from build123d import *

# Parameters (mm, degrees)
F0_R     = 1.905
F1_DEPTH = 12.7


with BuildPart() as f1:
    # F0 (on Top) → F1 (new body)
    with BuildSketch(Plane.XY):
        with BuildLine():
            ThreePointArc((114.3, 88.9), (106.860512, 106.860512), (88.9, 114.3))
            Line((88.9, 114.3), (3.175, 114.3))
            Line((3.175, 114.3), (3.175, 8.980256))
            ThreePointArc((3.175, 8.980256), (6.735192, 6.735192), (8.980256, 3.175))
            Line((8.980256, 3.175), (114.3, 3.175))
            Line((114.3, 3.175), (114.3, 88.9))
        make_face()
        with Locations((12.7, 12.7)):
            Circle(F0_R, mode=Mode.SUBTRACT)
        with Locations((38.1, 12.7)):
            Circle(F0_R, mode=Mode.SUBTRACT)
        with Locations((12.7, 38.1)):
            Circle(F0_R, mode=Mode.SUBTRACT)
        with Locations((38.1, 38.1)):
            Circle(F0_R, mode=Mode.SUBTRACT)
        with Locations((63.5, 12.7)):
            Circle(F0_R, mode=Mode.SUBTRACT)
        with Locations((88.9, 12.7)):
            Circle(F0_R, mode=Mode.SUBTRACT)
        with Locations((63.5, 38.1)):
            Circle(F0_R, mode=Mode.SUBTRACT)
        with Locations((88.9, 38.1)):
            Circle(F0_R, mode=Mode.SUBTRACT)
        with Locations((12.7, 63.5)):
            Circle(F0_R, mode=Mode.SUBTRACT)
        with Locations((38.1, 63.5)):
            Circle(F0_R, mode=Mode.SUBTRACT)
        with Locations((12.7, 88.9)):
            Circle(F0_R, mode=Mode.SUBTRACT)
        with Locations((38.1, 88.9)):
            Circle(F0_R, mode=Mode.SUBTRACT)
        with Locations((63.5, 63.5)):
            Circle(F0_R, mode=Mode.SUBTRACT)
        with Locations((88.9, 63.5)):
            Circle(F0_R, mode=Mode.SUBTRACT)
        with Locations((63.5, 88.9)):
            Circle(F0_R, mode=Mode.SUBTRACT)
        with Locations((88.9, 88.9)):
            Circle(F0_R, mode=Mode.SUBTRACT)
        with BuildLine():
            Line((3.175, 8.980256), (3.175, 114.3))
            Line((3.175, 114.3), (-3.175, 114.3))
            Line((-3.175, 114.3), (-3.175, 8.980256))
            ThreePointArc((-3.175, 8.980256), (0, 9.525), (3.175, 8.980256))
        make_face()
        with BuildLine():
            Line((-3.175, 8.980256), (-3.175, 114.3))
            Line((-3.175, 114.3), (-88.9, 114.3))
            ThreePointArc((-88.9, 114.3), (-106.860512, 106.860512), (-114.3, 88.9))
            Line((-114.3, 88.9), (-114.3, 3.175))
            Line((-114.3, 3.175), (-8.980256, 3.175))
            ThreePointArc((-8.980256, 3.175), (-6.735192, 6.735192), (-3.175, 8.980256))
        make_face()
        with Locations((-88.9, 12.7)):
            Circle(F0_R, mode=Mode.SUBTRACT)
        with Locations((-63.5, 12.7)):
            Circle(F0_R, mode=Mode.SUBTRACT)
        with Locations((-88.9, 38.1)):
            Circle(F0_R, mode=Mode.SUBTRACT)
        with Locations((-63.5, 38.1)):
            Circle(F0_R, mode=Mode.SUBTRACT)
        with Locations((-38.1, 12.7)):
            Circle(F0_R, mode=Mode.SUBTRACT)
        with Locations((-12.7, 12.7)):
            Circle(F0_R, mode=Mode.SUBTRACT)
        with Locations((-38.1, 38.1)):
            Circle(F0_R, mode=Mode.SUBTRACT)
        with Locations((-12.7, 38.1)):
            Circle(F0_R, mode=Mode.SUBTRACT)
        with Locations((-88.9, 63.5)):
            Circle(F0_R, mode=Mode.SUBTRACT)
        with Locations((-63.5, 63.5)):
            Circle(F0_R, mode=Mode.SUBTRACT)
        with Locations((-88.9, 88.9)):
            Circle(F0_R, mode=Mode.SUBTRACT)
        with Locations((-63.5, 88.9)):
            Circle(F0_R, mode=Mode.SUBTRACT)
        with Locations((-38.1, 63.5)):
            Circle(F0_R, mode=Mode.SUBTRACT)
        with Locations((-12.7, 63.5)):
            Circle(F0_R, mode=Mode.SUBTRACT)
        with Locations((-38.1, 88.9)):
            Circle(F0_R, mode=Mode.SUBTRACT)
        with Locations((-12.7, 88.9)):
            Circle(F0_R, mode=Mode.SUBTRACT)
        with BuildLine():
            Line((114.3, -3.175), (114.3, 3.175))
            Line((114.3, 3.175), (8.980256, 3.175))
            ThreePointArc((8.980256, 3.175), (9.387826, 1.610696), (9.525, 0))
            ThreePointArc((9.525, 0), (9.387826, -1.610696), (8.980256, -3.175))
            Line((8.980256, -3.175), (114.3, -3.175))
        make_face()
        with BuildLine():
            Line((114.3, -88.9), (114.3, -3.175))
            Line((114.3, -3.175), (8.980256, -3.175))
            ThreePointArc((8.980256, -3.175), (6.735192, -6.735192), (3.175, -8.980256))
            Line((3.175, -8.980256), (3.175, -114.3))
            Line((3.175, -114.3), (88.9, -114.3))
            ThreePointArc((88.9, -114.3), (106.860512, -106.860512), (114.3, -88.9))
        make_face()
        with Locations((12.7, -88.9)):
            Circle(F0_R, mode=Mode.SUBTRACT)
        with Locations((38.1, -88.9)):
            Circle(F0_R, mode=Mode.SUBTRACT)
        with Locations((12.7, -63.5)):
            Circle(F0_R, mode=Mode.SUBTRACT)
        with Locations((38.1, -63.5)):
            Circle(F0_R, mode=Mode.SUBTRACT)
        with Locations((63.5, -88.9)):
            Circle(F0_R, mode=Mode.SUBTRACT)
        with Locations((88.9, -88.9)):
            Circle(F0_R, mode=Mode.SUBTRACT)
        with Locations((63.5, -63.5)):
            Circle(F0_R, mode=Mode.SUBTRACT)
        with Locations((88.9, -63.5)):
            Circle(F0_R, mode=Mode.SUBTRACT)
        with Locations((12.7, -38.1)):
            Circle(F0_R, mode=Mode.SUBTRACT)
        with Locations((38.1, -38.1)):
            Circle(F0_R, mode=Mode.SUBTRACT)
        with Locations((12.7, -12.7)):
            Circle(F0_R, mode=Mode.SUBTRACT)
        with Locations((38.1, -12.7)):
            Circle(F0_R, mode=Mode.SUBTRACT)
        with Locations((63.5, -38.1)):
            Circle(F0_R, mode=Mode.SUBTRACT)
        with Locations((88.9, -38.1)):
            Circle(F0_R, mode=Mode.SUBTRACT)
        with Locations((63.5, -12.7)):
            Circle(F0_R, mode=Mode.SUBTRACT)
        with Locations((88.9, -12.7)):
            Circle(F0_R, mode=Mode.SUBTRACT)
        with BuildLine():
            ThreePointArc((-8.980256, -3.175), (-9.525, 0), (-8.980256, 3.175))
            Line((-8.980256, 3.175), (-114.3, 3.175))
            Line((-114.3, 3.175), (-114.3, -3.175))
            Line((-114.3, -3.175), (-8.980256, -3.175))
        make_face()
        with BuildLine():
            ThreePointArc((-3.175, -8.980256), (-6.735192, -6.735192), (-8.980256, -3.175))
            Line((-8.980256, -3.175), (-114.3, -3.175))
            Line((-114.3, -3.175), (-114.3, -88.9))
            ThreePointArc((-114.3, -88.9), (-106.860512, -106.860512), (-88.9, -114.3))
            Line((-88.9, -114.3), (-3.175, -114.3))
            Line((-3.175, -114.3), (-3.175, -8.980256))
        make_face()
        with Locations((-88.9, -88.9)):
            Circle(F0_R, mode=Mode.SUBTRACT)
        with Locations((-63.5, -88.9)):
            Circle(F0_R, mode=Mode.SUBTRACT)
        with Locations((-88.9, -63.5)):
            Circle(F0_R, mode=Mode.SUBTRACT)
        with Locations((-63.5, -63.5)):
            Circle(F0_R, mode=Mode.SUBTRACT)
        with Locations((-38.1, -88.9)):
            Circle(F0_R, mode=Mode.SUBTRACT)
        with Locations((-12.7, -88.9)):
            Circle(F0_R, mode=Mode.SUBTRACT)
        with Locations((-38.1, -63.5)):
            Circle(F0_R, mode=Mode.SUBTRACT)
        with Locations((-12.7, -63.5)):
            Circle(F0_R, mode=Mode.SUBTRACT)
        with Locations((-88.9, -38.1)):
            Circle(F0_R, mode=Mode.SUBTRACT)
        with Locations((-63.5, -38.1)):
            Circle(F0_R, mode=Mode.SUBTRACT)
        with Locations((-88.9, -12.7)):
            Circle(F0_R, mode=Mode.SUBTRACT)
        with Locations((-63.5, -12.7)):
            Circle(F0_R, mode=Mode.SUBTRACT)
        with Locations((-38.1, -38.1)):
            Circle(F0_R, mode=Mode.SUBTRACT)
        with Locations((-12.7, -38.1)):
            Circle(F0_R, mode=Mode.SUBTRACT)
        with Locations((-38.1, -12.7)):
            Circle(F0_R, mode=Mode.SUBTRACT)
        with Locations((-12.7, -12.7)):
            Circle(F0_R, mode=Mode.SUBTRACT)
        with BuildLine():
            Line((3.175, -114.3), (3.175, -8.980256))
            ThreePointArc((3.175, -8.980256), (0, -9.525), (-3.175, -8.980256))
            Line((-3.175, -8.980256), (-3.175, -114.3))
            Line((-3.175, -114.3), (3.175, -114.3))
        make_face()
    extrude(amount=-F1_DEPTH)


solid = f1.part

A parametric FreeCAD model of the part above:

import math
import FreeCAD as App
import Part
import Sketcher
Q = App.Units.Quantity

doc = App.newDocument("Part")
body = doc.addObject("PartDesign::Body", "Body")

sketch1 = body.newObject("Sketcher::SketchObject", "Sketch")
sketch1.AttachmentSupport = (doc.getObject("XY_Plane"), [""])
sketch1.MapMode = "FlatFace"
sketch1.addGeometry([
    Part.ArcOfCircle(Part.Circle(App.Vector(88.899999, 88.899999, 0), App.Vector(0, 0, 1), 25.400001), math.radians(0.000002), math.radians(89.999998)),
    Part.LineSegment(App.Vector(88.9, 114.3, 0), App.Vector(-88.9, 114.3, 0)),
    Part.ArcOfCircle(Part.Circle(App.Vector(-88.899999, 88.899999, 0), App.Vector(0, 0, 1), 25.400001), math.radians(90.000002), math.radians(179.999998)),
    Part.LineSegment(App.Vector(-114.3, 88.9, 0), App.Vector(-114.3, -88.9, 0)),
    Part.ArcOfCircle(Part.Circle(App.Vector(-88.899999, -88.899999, 0), App.Vector(0, 0, 1), 25.400001), math.radians(-179.999998), math.radians(-90.000002)),
    Part.LineSegment(App.Vector(-88.9, -114.3, 0), App.Vector(88.9, -114.3, 0)),
    Part.ArcOfCircle(Part.Circle(App.Vector(88.899999, -88.899999, 0), App.Vector(0, 0, 1), 25.400001), math.radians(-89.999998), math.radians(-0.000002)),
    Part.LineSegment(App.Vector(114.3, -88.9, 0), App.Vector(114.3, 88.9, 0)),
    Part.ArcOfCircle(Part.Circle(App.Vector(0, 0, 0), App.Vector(0, 0, 1), 9.525), math.radians(-70.528779), math.radians(-19.471221)),
    Part.ArcOfCircle(Part.Circle(App.Vector(0, -0.000002, 0), App.Vector(0, 0, 1), 9.524998), math.radians(-109.471225), math.radians(-70.528775)),
    Part.ArcOfCircle(Part.Circle(App.Vector(0, 0, 0), App.Vector(0, 0, 1), 9.525), math.radians(-160.528779), math.radians(-109.471221)),
    Part.ArcOfCircle(Part.Circle(App.Vector(-0.000002, 0, 0), App.Vector(0, 0, 1), 9.524998), math.radians(160.528775), math.radians(199.471225)),
    Part.ArcOfCircle(Part.Circle(App.Vector(0, 0, 0), App.Vector(0, 0, 1), 9.525), math.radians(109.471221), math.radians(160.528779)),
    Part.ArcOfCircle(Part.Circle(App.Vector(0, 0.000002, 0), App.Vector(0, 0, 1), 9.524998), math.radians(70.528775), math.radians(109.471225)),
    Part.ArcOfCircle(Part.Circle(App.Vector(0, 0, 0), App.Vector(0, 0, 1), 9.525), math.radians(19.471221), math.radians(70.528779)),
    Part.ArcOfCircle(Part.Circle(App.Vector(-0.000019, -0.000004, 0), App.Vector(0, 0, 1), 9.525019), math.radians(0.000022), math.radians(19.471203)),
    Part.ArcOfCircle(Part.Circle(App.Vector(-0.000019, 0.000004, 0), App.Vector(0, 0, 1), 9.525019), math.radians(-19.471203), math.radians(-0.000022)),
    Part.Circle(App.Vector(-88.9, -88.9, 0), App.Vector(0, 0, 1), 1.905),
    Part.Circle(App.Vector(-63.5, -88.9, 0), App.Vector(0, 0, 1), 1.905),
    Part.Circle(App.Vector(-88.9, -63.5, 0), App.Vector(0, 0, 1), 1.905),
    Part.Circle(App.Vector(-63.5, -63.5, 0), App.Vector(0, 0, 1), 1.905),
    Part.Circle(App.Vector(-38.1, -88.9, 0), App.Vector(0, 0, 1), 1.905),
    Part.Circle(App.Vector(-12.7, -88.9, 0), App.Vector(0, 0, 1), 1.905),
    Part.Circle(App.Vector(-38.1, -63.5, 0), App.Vector(0, 0, 1), 1.905),
    Part.Circle(App.Vector(-12.7, -63.5, 0), App.Vector(0, 0, 1), 1.905),
    Part.Circle(App.Vector(-88.9, -38.1, 0), App.Vector(0, 0, 1), 1.905),
    Part.Circle(App.Vector(-63.5, -38.1, 0), App.Vector(0, 0, 1), 1.905),
    Part.Circle(App.Vector(-88.9, -12.7, 0), App.Vector(0, 0, 1), 1.905),
    Part.Circle(App.Vector(-63.5, -12.7, 0), App.Vector(0, 0, 1), 1.905),
    Part.Circle(App.Vector(-38.1, -38.1, 0), App.Vector(0, 0, 1), 1.905),
    Part.Circle(App.Vector(-12.7, -38.1, 0), App.Vector(0, 0, 1), 1.905),
    Part.Circle(App.Vector(-38.1, -12.7, 0), App.Vector(0, 0, 1), 1.905),
    Part.Circle(App.Vector(-12.7, -12.7, 0), App.Vector(0, 0, 1), 1.905),
    Part.Circle(App.Vector(12.7, -88.9, 0), App.Vector(0, 0, 1), 1.905),
    Part.Circle(App.Vector(38.1, -88.9, 0), App.Vector(0, 0, 1), 1.905),
    Part.Circle(App.Vector(12.7, -63.5, 0), App.Vector(0, 0, 1), 1.905),
    Part.Circle(App.Vector(38.1, -63.5, 0), App.Vector(0, 0, 1), 1.905),
    Part.Circle(App.Vector(63.5, -88.9, 0), App.Vector(0, 0, 1), 1.905),
    Part.Circle(App.Vector(88.9, -88.9, 0), App.Vector(0, 0, 1), 1.905),
    Part.Circle(App.Vector(63.5, -63.5, 0), App.Vector(0, 0, 1), 1.905),
    Part.Circle(App.Vector(88.9, -63.5, 0), App.Vector(0, 0, 1), 1.905),
    Part.Circle(App.Vector(12.7, -38.1, 0), App.Vector(0, 0, 1), 1.905),
    Part.Circle(App.Vector(38.1, -38.1, 0), App.Vector(0, 0, 1), 1.905),
    Part.Circle(App.Vector(12.7, -12.7, 0), App.Vector(0, 0, 1), 1.905),
    Part.Circle(App.Vector(38.1, -12.7, 0), App.Vector(0, 0, 1), 1.905),
    Part.Circle(App.Vector(63.5, -38.1, 0), App.Vector(0, 0, 1), 1.905),
    Part.Circle(App.Vector(88.9, -38.1, 0), App.Vector(0, 0, 1), 1.905),
    Part.Circle(App.Vector(63.5, -12.7, 0), App.Vector(0, 0, 1), 1.905),
    Part.Circle(App.Vector(88.9, -12.7, 0), App.Vector(0, 0, 1), 1.905),
    Part.Circle(App.Vector(-88.9, 12.7, 0), App.Vector(0, 0, 1), 1.905),
    Part.Circle(App.Vector(-63.5, 12.7, 0), App.Vector(0, 0, 1), 1.905),
    Part.Circle(App.Vector(-88.9, 38.1, 0), App.Vector(0, 0, 1), 1.905),
    Part.Circle(App.Vector(-63.5, 38.1, 0), App.Vector(0, 0, 1), 1.905),
    Part.Circle(App.Vector(-38.1, 12.7, 0), App.Vector(0, 0, 1), 1.905),
    Part.Circle(App.Vector(-12.7, 12.7, 0), App.Vector(0, 0, 1), 1.905),
    Part.Circle(App.Vector(-38.1, 38.1, 0), App.Vector(0, 0, 1), 1.905),
    Part.Circle(App.Vector(-12.7, 38.1, 0), App.Vector(0, 0, 1), 1.905),
    Part.Circle(App.Vector(-88.9, 63.5, 0), App.Vector(0, 0, 1), 1.905),
    Part.Circle(App.Vector(-63.5, 63.5, 0), App.Vector(0, 0, 1), 1.905),
    Part.Circle(App.Vector(-88.9, 88.9, 0), App.Vector(0, 0, 1), 1.905),
    Part.Circle(App.Vector(-63.5, 88.9, 0), App.Vector(0, 0, 1), 1.905),
    Part.Circle(App.Vector(-38.1, 63.5, 0), App.Vector(0, 0, 1), 1.905),
    Part.Circle(App.Vector(-12.7, 63.5, 0), App.Vector(0, 0, 1), 1.905),
    Part.Circle(App.Vector(-38.1, 88.9, 0), App.Vector(0, 0, 1), 1.905),
    Part.Circle(App.Vector(-12.7, 88.9, 0), App.Vector(0, 0, 1), 1.905),
    Part.Circle(App.Vector(12.7, 12.7, 0), App.Vector(0, 0, 1), 1.905),
    Part.Circle(App.Vector(38.1, 12.7, 0), App.Vector(0, 0, 1), 1.905),
    Part.Circle(App.Vector(12.7, 38.1, 0), App.Vector(0, 0, 1), 1.905),
    Part.Circle(App.Vector(38.1, 38.1, 0), App.Vector(0, 0, 1), 1.905),
    Part.Circle(App.Vector(63.5, 12.7, 0), App.Vector(0, 0, 1), 1.905),
    Part.Circle(App.Vector(88.9, 12.7, 0), App.Vector(0, 0, 1), 1.905),
    Part.Circle(App.Vector(63.5, 38.1, 0), App.Vector(0, 0, 1), 1.905),
    Part.Circle(App.Vector(88.9, 38.1, 0), App.Vector(0, 0, 1), 1.905),
    Part.Circle(App.Vector(12.7, 63.5, 0), App.Vector(0, 0, 1), 1.905),
    Part.Circle(App.Vector(38.1, 63.5, 0), App.Vector(0, 0, 1), 1.905),
    Part.Circle(App.Vector(12.7, 88.9, 0), App.Vector(0, 0, 1), 1.905),
    Part.Circle(App.Vector(38.1, 88.9, 0), App.Vector(0, 0, 1), 1.905),
    Part.Circle(App.Vector(63.5, 63.5, 0), App.Vector(0, 0, 1), 1.905),
    Part.Circle(App.Vector(88.9, 63.5, 0), App.Vector(0, 0, 1), 1.905),
    Part.Circle(App.Vector(63.5, 88.9, 0), App.Vector(0, 0, 1), 1.905),
    Part.Circle(App.Vector(88.9, 88.9, 0), App.Vector(0, 0, 1), 1.905),
], False)
sketch1.addConstraint([
    Sketcher.Constraint("Tangent", 0, 2, 1, 1),
    Sketcher.Constraint("Tangent", 1, 2, 2, 1),
    Sketcher.Constraint("Tangent", 2, 2, 3, 1),
    Sketcher.Constraint("Tangent", 3, 2, 4, 1),
    Sketcher.Constraint("Tangent", 4, 2, 5, 1),
    Sketcher.Constraint("Tangent", 5, 2, 6, 1),
    Sketcher.Constraint("Tangent", 6, 2, 7, 1),
    Sketcher.Constraint("Tangent", 7, 2, 0, 1),
    Sketcher.Constraint("Tangent", 8, 1, 9, 2),
    Sketcher.Constraint("Tangent", 9, 1, 10, 2),
    Sketcher.Constraint("Tangent", 10, 1, 11, 2),
    Sketcher.Constraint("Tangent", 11, 1, 12, 2),
    Sketcher.Constraint("Tangent", 12, 1, 13, 2),
    Sketcher.Constraint("Tangent", 13, 1, 14, 2),
    Sketcher.Constraint("Tangent", 14, 1, 15, 2),
    Sketcher.Constraint("Tangent", 15, 1, 16, 2),
    Sketcher.Constraint("Tangent", 16, 1, 8, 2),
    Sketcher.Constraint("Horizontal", 1),
    Sketcher.Constraint("Vertical", 3),
    Sketcher.Constraint("Horizontal", 5),
    Sketcher.Constraint("Vertical", 7),
    Sketcher.Constraint("Coincident", 8, 3, -1, 1),
    Sketcher.Constraint("Coincident", 10, 3, -1, 1),
    Sketcher.Constraint("Coincident", 12, 3, -1, 1),
    Sketcher.Constraint("Coincident", 14, 3, -1, 1),
    Sketcher.Constraint("Coincident", 17, 3, 4, 3),
    Sketcher.Constraint("Coincident", 38, 3, 6, 3),
    Sketcher.Constraint("Coincident", 59, 3, 2, 3),
    Sketcher.Constraint("Coincident", 80, 3, 0, 3),
    Sketcher.Constraint("Equal", 0, 2),
    Sketcher.Constraint("Equal", 2, 4),
    Sketcher.Constraint("Equal", 4, 6),
    Sketcher.Constraint("Equal", 17, 18),
    Sketcher.Constraint("Equal", 18, 19),
    Sketcher.Constraint("Equal", 19, 20),
    Sketcher.Constraint("Equal", 20, 21),
    Sketcher.Constraint("Equal", 21, 22),
    Sketcher.Constraint("Equal", 22, 23),
    Sketcher.Constraint("Equal", 23, 24),
    Sketcher.Constraint("Equal", 24, 25),
    Sketcher.Constraint("Equal", 25, 26),
    Sketcher.Constraint("Equal", 26, 27),
    Sketcher.Constraint("Equal", 27, 28),
    Sketcher.Constraint("Equal", 28, 29),
    Sketcher.Constraint("Equal", 29, 30),
    Sketcher.Constraint("Equal", 30, 31),
    Sketcher.Constraint("Equal", 31, 32),
    Sketcher.Constraint("Equal", 32, 33),
    Sketcher.Constraint("Equal", 33, 34),
    Sketcher.Constraint("Equal", 34, 35),
    Sketcher.Constraint("Equal", 35, 36),
    Sketcher.Constraint("Equal", 36, 37),
    Sketcher.Constraint("Equal", 37, 38),
    Sketcher.Constraint("Equal", 38, 39),
    Sketcher.Constraint("Equal", 39, 40),
    Sketcher.Constraint("Equal", 40, 41),
    Sketcher.Constraint("Equal", 41, 42),
    Sketcher.Constraint("Equal", 42, 43),
    Sketcher.Constraint("Equal", 43, 44),
    Sketcher.Constraint("Equal", 44, 45),
    Sketcher.Constraint("Equal", 45, 46),
    Sketcher.Constraint("Equal", 46, 47),
    Sketcher.Constraint("Equal", 47, 48),
    Sketcher.Constraint("Equal", 48, 49),
    Sketcher.Constraint("Equal", 49, 50),
    Sketcher.Constraint("Equal", 50, 51),
    Sketcher.Constraint("Equal", 51, 52),
    Sketcher.Constraint("Equal", 52, 53),
    Sketcher.Constraint("Equal", 53, 54),
    Sketcher.Constraint("Equal", 54, 55),
    Sketcher.Constraint("Equal", 55, 56),
    Sketcher.Constraint("Equal", 56, 57),
    Sketcher.Constraint("Equal", 57, 58),
    Sketcher.Constraint("Equal", 58, 59),
    Sketcher.Constraint("Equal", 59, 60),
    Sketcher.Constraint("Equal", 60, 61),
    Sketcher.Constraint("Equal", 61, 62),
    Sketcher.Constraint("Equal", 62, 63),
    Sketcher.Constraint("Equal", 63, 64),
    Sketcher.Constraint("Equal", 64, 65),
    Sketcher.Constraint("Equal", 65, 66),
    Sketcher.Constraint("Equal", 66, 67),
    Sketcher.Constraint("Equal", 67, 68),
    Sketcher.Constraint("Equal", 68, 69),
    Sketcher.Constraint("Equal", 69, 70),
    Sketcher.Constraint("Equal", 70, 71),
    Sketcher.Constraint("Equal", 71, 72),
    Sketcher.Constraint("Equal", 72, 73),
    Sketcher.Constraint("Equal", 73, 74),
    Sketcher.Constraint("Equal", 74, 75),
    Sketcher.Constraint("Equal", 75, 76),
    Sketcher.Constraint("Equal", 76, 77),
    Sketcher.Constraint("Equal", 77, 78),
    Sketcher.Constraint("Equal", 78, 79),
    Sketcher.Constraint("Equal", 79, 80),
    Sketcher.Constraint("Symmetric", 0, 3, 4, 3, -1, 1),
    Sketcher.Constraint("Symmetric", 48, 3, 49, 3, -1, 1),
    Sketcher.Constraint("Symmetric", 47, 3, 50, 3, -1, 1),
    Sketcher.Constraint("Symmetric", 46, 3, 51, 3, -1, 1),
    Sketcher.Constraint("Symmetric", 45, 3, 52, 3, -1, 1),
    Sketcher.Constraint("Symmetric", 44, 3, 53, 3, -1, 1),
    Sketcher.Constraint("Symmetric", 43, 3, 54, 3, -1, 1),
    Sketcher.Constraint("Symmetric", 42, 3, 55, 3, -1, 1),
    Sketcher.Constraint("Symmetric", 41, 3, 56, 3, -1, 1),
    Sketcher.Constraint("Symmetric", 40, 3, 57, 3, -1, 1),
    Sketcher.Constraint("Symmetric", 39, 3, 58, 3, -1, 1),
    Sketcher.Constraint("Symmetric", 37, 3, 60, 3, -1, 1),
    Sketcher.Constraint("Symmetric", 36, 3, 61, 3, -1, 1),
    Sketcher.Constraint("Symmetric", 35, 3, 62, 3, -1, 1),
    Sketcher.Constraint("Symmetric", 34, 3, 63, 3, -1, 1),
    Sketcher.Constraint("Symmetric", 33, 3, 64, 3, -1, 1),
    Sketcher.Constraint("Symmetric", 32, 3, 65, 3, -1, 1),
    Sketcher.Constraint("Symmetric", 31, 3, 66, 3, -1, 1),
    Sketcher.Constraint("Symmetric", 30, 3, 67, 3, -1, 1),
    Sketcher.Constraint("Symmetric", 29, 3, 68, 3, -1, 1),
    Sketcher.Constraint("Symmetric", 28, 3, 69, 3, -1, 1),
    Sketcher.Constraint("Symmetric", 27, 3, 70, 3, -1, 1),
    Sketcher.Constraint("Symmetric", 26, 3, 71, 3, -1, 1),
    Sketcher.Constraint("Symmetric", 25, 3, 72, 3, -1, 1),
    Sketcher.Constraint("Symmetric", 24, 3, 73, 3, -1, 1),
    Sketcher.Constraint("Symmetric", 23, 3, 74, 3, -1, 1),
    Sketcher.Constraint("Symmetric", 22, 3, 75, 3, -1, 1),
    Sketcher.Constraint("Symmetric", 21, 3, 76, 3, -1, 1),
    Sketcher.Constraint("Symmetric", 20, 3, 77, 3, -1, 1),
    Sketcher.Constraint("Symmetric", 19, 3, 78, 3, -1, 1),
    Sketcher.Constraint("Symmetric", 18, 3, 79, 3, -1, 1),
    Sketcher.Constraint("Symmetric", 22, 3, 33, 3, -2),
    Sketcher.Constraint("Symmetric", 21, 3, 34, 3, -2),
    Sketcher.Constraint("Symmetric", 24, 3, 35, 3, -2),
    Sketcher.Constraint("Symmetric", 23, 3, 36, 3, -2),
    Sketcher.Constraint("Symmetric", 18, 3, 37, 3, -2),
    Sketcher.Constraint("Symmetric", 20, 3, 39, 3, -2),
    Sketcher.Constraint("Symmetric", 19, 3, 40, 3, -2),
    Sketcher.Constraint("Symmetric", 30, 3, 41, 3, -2),
    Sketcher.Constraint("Symmetric", 29, 3, 42, 3, -2),
    Sketcher.Constraint("Symmetric", 32, 3, 43, 3, -2),
    Sketcher.Constraint("Symmetric", 31, 3, 44, 3, -2),
    Sketcher.Constraint("Symmetric", 26, 3, 45, 3, -2),
    Sketcher.Constraint("Symmetric", 25, 3, 46, 3, -2),
    Sketcher.Constraint("Symmetric", 28, 3, 47, 3, -2),
    Sketcher.Constraint("Symmetric", 27, 3, 48, 3, -2),
    Sketcher.Constraint("PointOnObject", 15, 1, -1),
    Sketcher.Constraint("Horizontal", 17, 3, 18, 3),
    Sketcher.Constraint("Horizontal", 19, 3, 20, 3),
    Sketcher.Constraint("Horizontal", 18, 3, 21, 3),
    Sketcher.Constraint("Horizontal", 21, 3, 22, 3),
    Sketcher.Constraint("Horizontal", 20, 3, 23, 3),
    Sketcher.Constraint("Horizontal", 23, 3, 24, 3),
    Sketcher.Constraint("Horizontal", 25, 3, 26, 3),
    Sketcher.Constraint("Horizontal", 27, 3, 28, 3),
    Sketcher.Constraint("Horizontal", 26, 3, 29, 3),
    Sketcher.Constraint("Horizontal", 29, 3, 30, 3),
    Sketcher.Constraint("Horizontal", 28, 3, 31, 3),
    Sketcher.Constraint("Horizontal", 31, 3, 32, 3),
    Sketcher.Constraint("Horizontal", 8, 1, 9, 1),
    Sketcher.Constraint("Horizontal", 12, 1, 13, 1),
    Sketcher.Constraint("Horizontal", 11, 1, 14, 1),
    Sketcher.Constraint("Horizontal", 10, 1, 16, 1),
    Sketcher.Constraint("Vertical", 17, 3, 19, 3),
    Sketcher.Constraint("Vertical", 18, 3, 20, 3),
    Sketcher.Constraint("Vertical", 21, 3, 23, 3),
    Sketcher.Constraint("Vertical", 22, 3, 24, 3),
    Sketcher.Constraint("Vertical", 19, 3, 25, 3),
    Sketcher.Constraint("Vertical", 20, 3, 26, 3),
    Sketcher.Constraint("Vertical", 25, 3, 27, 3),
    Sketcher.Constraint("Vertical", 26, 3, 28, 3),
    Sketcher.Constraint("Vertical", 23, 3, 29, 3),
    Sketcher.Constraint("Vertical", 24, 3, 30, 3),
    Sketcher.Constraint("Vertical", 29, 3, 31, 3),
    Sketcher.Constraint("Vertical", 30, 3, 32, 3),
    Sketcher.Constraint("Vertical", 10, 1, 11, 1),
    Sketcher.Constraint("Vertical", 9, 1, 12, 1),
    Sketcher.Constraint("Equal", 5, 3),
    Sketcher.Constraint("Radius", 0, Q("1 in")),
    Sketcher.Constraint("Diameter", 17, Q("0.15 in")),
    Sketcher.Constraint("DistanceX", 1, 2, 1, 1, Q("7 in")),
    Sketcher.Constraint("Radius", 8, Q("0.375 in")),
    Sketcher.Constraint("DistanceX", 18, 3, -1, 1, Q("2.5 in")),
    Sketcher.Constraint("DistanceY", 19, 3, -1, 1, Q("2.5 in")),
    Sketcher.Constraint("DistanceX", 21, 3, -1, 1, Q("1.5 in")),
    Sketcher.Constraint("DistanceX", 22, 3, -1, 1, Q("0.5 in")),
    Sketcher.Constraint("DistanceY", 25, 3, -1, 1, Q("1.5 in")),
    Sketcher.Constraint("DistanceY", 27, 3, -1, 1, Q("0.5 in")),
    Sketcher.Constraint("DistanceX", -1, 1, 8, 1, Q("0.125 in")),
    Sketcher.Constraint("DistanceY", 10, 1, -1, 1, Q("0.125 in")),
])
pad1 = body.newObject("PartDesign::Pad", "Pad")
pad1.Profile = sketch1
pad1.Length = Q("0.5 in")
pad1.Reversed = True

doc.recompute()
